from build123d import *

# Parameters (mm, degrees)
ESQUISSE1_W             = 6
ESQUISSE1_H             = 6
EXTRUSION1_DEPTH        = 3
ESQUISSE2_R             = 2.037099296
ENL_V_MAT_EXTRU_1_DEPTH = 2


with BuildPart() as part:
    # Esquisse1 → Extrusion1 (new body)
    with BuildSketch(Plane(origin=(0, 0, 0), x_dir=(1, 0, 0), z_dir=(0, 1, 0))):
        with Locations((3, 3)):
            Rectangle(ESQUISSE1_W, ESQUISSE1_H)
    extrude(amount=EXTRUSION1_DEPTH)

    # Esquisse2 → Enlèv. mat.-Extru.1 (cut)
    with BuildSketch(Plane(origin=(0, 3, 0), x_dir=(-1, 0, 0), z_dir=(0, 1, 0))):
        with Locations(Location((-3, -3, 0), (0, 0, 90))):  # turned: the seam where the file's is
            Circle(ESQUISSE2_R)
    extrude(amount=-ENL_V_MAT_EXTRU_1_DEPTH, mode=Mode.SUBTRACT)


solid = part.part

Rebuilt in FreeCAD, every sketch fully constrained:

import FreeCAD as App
import Part
import Sketcher
from FreeCAD import Vector
Q = App.Units.Quantity

doc = App.newDocument("Part")
body = doc.addObject("PartDesign::Body", "Body")

sketch1 = doc.addObject("Sketcher::SketchObject", "Sketch")
body.addObject(sketch1)
sketch1.AttachmentSupport = (doc.XZ_Plane, [""])
sketch1.MapMode = "FlatFace"
sketch1.addGeometry([
    Part.LineSegment(Vector(0, -6, 0), Vector(0, 0, 0)),
    Part.LineSegment(Vector(0, 0, 0), Vector(6, 0, 0)),
    Part.LineSegment(Vector(6, 0, 0), Vector(6, -6, 0)),
    Part.LineSegment(Vector(6, -6, 0), Vector(0, -6, 0)),
], False)
sketch1.addConstraint([
    Sketcher.Constraint("Coincident", 0, 2, 1, 1),
    Sketcher.Constraint("Coincident", 1, 2, 2, 1),
    Sketcher.Constraint("Coincident", 2, 2, 3, 1),
    Sketcher.Constraint("Coincident", 3, 2, 0, 1),
    Sketcher.Constraint("Vertical", 0),
    Sketcher.Constraint("Horizontal", 1),
    Sketcher.Constraint("Vertical", 2),
    Sketcher.Constraint("Horizontal", 3),
    Sketcher.Constraint("Coincident", 0, 2, -1, 1),
    Sketcher.Constraint("Equal", 3, 0),
    Sketcher.Constraint("DistanceX", 1, 1, 1, 2, Q("6 mm")),
])
pad1 = doc.addObject("PartDesign::Pad", "Pad")
body.addObject(pad1)
pad1.Profile = sketch1
pad1.Length = 3
pad1.Reversed = True

sketch2 = doc.addObject("Sketcher::SketchObject", "Sketch001")
body.addObject(sketch2)
sketch2.AttachmentSupport = (doc.XZ_Plane, [""])
sketch2.MapMode = "FlatFace"
sketch2.AttachmentOffset = App.Placement(Vector(0, 0, -3), App.Rotation())
sketch2.addGeometry(Part.Circle(Vector(3, -3, 0), Vector(0, 0, 1), 2), False)
sketch2.addConstraint([
    Sketcher.Constraint("DistanceX", -1, 1, 0, 3, Q("3 mm")),
    Sketcher.Constraint("DistanceY", 0, 3, -1, 1, Q("3 mm")),
    Sketcher.Constraint("Diameter", 0, Q("4.074199 mm")),
])
pocket1 = doc.addObject("PartDesign::Pocket", "Pocket")
body.addObject(pocket1)
pocket1.Profile = sketch2
pocket1.Length = 2
pocket1.Reversed = True

doc.recompute()
